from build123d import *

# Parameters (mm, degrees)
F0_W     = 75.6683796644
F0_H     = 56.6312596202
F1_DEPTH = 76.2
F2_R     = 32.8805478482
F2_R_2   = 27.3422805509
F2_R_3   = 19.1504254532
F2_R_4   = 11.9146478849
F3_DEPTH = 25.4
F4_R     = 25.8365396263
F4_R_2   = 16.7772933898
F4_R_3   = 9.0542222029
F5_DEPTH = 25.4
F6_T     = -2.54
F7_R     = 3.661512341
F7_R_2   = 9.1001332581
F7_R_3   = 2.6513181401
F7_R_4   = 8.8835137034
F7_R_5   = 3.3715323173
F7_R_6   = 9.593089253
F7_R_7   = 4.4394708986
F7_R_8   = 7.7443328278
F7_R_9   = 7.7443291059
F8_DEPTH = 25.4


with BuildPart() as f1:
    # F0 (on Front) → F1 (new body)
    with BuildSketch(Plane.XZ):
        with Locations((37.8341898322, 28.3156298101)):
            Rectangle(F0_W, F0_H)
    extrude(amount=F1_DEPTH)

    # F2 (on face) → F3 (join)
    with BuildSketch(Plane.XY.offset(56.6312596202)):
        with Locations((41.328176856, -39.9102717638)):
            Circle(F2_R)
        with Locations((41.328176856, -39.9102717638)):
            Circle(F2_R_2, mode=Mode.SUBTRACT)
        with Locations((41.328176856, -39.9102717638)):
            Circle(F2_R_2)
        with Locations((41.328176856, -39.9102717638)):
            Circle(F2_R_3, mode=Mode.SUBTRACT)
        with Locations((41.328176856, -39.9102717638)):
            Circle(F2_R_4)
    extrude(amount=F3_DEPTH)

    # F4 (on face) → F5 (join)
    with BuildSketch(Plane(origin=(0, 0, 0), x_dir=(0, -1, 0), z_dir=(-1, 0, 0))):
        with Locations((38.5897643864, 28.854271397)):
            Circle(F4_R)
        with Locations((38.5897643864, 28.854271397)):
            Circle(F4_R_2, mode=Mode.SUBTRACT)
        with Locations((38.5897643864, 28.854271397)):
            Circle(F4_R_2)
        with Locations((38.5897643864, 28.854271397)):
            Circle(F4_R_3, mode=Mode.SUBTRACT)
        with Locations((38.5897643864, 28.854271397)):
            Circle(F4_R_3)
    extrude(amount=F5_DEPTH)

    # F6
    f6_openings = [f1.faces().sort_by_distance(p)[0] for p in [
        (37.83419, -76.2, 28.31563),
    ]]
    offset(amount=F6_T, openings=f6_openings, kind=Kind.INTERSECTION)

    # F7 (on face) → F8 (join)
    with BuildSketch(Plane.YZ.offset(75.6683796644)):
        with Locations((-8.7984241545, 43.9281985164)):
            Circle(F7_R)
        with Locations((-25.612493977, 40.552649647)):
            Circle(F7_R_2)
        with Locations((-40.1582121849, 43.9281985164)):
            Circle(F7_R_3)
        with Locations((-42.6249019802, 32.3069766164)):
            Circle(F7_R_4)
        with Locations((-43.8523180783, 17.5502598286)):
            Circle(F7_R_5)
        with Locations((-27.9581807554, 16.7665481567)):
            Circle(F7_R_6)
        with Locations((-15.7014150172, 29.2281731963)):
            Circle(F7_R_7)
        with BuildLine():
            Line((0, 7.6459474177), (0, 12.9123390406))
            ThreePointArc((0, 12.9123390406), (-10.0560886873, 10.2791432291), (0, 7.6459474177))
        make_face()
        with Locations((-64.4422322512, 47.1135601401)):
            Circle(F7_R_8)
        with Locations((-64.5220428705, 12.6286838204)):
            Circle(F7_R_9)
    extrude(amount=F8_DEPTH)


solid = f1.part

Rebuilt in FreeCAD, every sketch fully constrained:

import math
import FreeCAD as App
import Part
import Sketcher
Q = App.Units.Quantity


def faces_at(feature, points):
    """Names of the faces that lie closest to the given points."""
    faces = feature.Shape.Faces
    near = lambda p: min(range(len(faces)), key=lambda i: faces[i].distToShape(Part.Vertex(*p))[0])
    return sorted({f"Face{near(p) + 1}" for p in points})

doc = App.newDocument("Part")
body = doc.addObject("PartDesign::Body", "Body")

sketch1 = doc.addObject("Sketcher::SketchObject", "Sketch")
body.addObject(sketch1)
sketch1.AttachmentSupport = (doc.XZ_Plane, [""])
sketch1.MapMode = "FlatFace"
sketch1.addGeometry([
    Part.LineSegment(App.Vector(0, 57, 0), App.Vector(0, 0, 0)),
    Part.LineSegment(App.Vector(0, 0, 0), App.Vector(76, 0, 0)),
    Part.LineSegment(App.Vector(76, 0, 0), App.Vector(76, 57, 0)),
    Part.LineSegment(App.Vector(76, 57, 0), App.Vector(0, 57, 0)),
], False)
sketch1.addConstraint([
    Sketcher.Constraint("Coincident", 0, 2, 1, 1),
    Sketcher.Constraint("Coincident", 1, 2, 2, 1),
    Sketcher.Constraint("Coincident", 2, 2, 3, 1),
    Sketcher.Constraint("Coincident", 3, 2, 0, 1),
    Sketcher.Constraint("Vertical", 0),
    Sketcher.Constraint("Horizontal", 1),
    Sketcher.Constraint("Vertical", 2),
    Sketcher.Constraint("Horizontal", 3),
    Sketcher.Constraint("Coincident", 0, 2, -1, 1),
    Sketcher.Constraint("DistanceX", 1, 1, 1, 2, 75.66838),
    Sketcher.Constraint("DistanceY", 0, 2, 0, 1, 56.63126),
])
pad1 = doc.addObject("PartDesign::Pad", "Pad")
body.addObject(pad1)
pad1.Profile = sketch1
pad1.Length = Q("3 in")

sketch2 = doc.addObject("Sketcher::SketchObject", "Sketch001")
body.addObject(sketch2)
sketch2.AttachmentSupport = (doc.XY_Plane, [""])
sketch2.MapMode = "FlatFace"
sketch2.AttachmentOffset = App.Placement(App.Vector(0, 0, 56.63126), App.Rotation())
sketch2.addGeometry([
    Part.Circle(App.Vector(41, -40, 0), App.Vector(0, 0, 1), 33),
    Part.Circle(App.Vector(41, -40, 0), App.Vector(0, 0, 1), 19),
    Part.Circle(App.Vector(41, -40, 0), App.Vector(0, 0, 1), 12),
], False)
sketch2.addConstraint([
    Sketcher.Constraint("Coincident", 1, 3, 0, 3),
    Sketcher.Constraint("Coincident", 2, 3, 0, 3),
    Sketcher.Constraint("Diameter", 1, 38.300851),
    Sketcher.Constraint("Diameter", 0, 65.761096),
    Sketcher.Constraint("Diameter", 2, 23.829296),
    Sketcher.Constraint("DistanceY", 0, 3, -1, 1, 39.910272),
    Sketcher.Constraint("DistanceX", -1, 1, 0, 3, 41.328177),
])
pad2 = doc.addObject("PartDesign::Pad", "Pad001")
body.addObject(pad2)
pad2.Profile = sketch2
pad2.Length = Q("1 in")

sketch3 = doc.addObject("Sketcher::SketchObject", "Sketch002")
body.addObject(sketch3)
sketch3.AttachmentSupport = (doc.YZ_Plane, [""])
sketch3.MapMode = "FlatFace"
sketch3.addGeometry(Part.Circle(App.Vector(-39, 29, 0), App.Vector(0, 0, 1), 26), False)
sketch3.addConstraint([
    Sketcher.Constraint("Diameter", 0, 51.673079),
    Sketcher.Constraint("DistanceY", -1, 1, 0, 3, 28.854271),
    Sketcher.Constraint("DistanceX", 0, 3, -1, 1, 38.589764),
])
pad3 = doc.addObject("PartDesign::Pad", "Pad002")
body.addObject(pad3)
pad3.Profile = sketch3
pad3.Length = Q("1 in")
pad3.Reversed = True
doc.recompute()

thickness = doc.addObject("PartDesign::Thickness", "Thickness")
body.addObject(thickness)
thickness.Base = (pad3, faces_at(pad3, [(37.834, -76.2, 28.316)]))
thickness.Value = Q("0.1 in")
thickness.Reversed = True
thickness.Join = "Intersection"

sketch4 = doc.addObject("Sketcher::SketchObject", "Sketch003")
body.addObject(sketch4)
sketch4.AttachmentSupport = (doc.YZ_Plane, [""])
sketch4.MapMode = "FlatFace"
sketch4.AttachmentOffset = App.Placement(App.Vector(0, 0, 75.66838), App.Rotation())
sketch4.addGeometry([
    Part.Circle(App.Vector(-8.8, 43.9, 0), App.Vector(0, 0, 1), 3.7),
    Part.Circle(App.Vector(-25.6, 40.6, 0), App.Vector(0, 0, 1), 9.1),
    Part.Circle(App.Vector(-40.2, 43.9, 0), App.Vector(0, 0, 1), 2.7),
    Part.Circle(App.Vector(-42.6, 32.3, 0), App.Vector(0, 0, 1), 8.9),
    Part.Circle(App.Vector(-43.9, 17.6, 0), App.Vector(0, 0, 1), 3.4),
    Part.Circle(App.Vector(-28, 16.8, 0), App.Vector(0, 0, 1), 9.6),
    Part.Circle(App.Vector(-15.7, 29.2, 0), App.Vector(0, 0, 1), 4.4),
    Part.LineSegment(App.Vector(0, 7.6, 0), App.Vector(0, 12.9, 0)),
    Part.ArcOfCircle(Part.Circle(App.Vector(-4.7, 10.3, 0), App.Vector(0, 0, 1), 5.4), math.radians(29), math.radians(331)),
    Part.Circle(App.Vector(-64.4, 47.1, 0), App.Vector(0, 0, 1), 7.7),
    Part.Circle(App.Vector(-64.5, 12.6, 0), App.Vector(0, 0, 1), 7.7),
], False)
sketch4.addConstraint([
    Sketcher.Constraint("Coincident", 7, 1, 8, 2),
    Sketcher.Constraint("Coincident", 8, 1, 7, 2),
    Sketcher.Constraint("Vertical", 7),
    Sketcher.Constraint("PointOnObject", 7, 1, -2),
    Sketcher.Constraint("Horizontal", 0, 3, 2, 3),
    Sketcher.Constraint("Diameter", 5, 19.186179),
    Sketcher.Constraint("Diameter", 6, 8.878942),
    Sketcher.Constraint("Diameter", 10, 15.488658),
    Sketcher.Constraint("Diameter", 0, 7.323025),
    Sketcher.Constraint("Diameter", 1, 18.200267),
    Sketcher.Constraint("Diameter", 2, 5.302636),
    Sketcher.Constraint("Diameter", 3, 17.767027),
    Sketcher.Constraint("Diameter", 4, 6.743065),
    Sketcher.Constraint("Diameter", 9, 15.488666),
    Sketcher.Constraint("Radius", 8, 5.372797),
    Sketcher.Constraint("DistanceX", 1, 3, 6, 3, Q("0.3902 in")),
    Sketcher.Constraint("DistanceY", 7, 1, 7, 2, 5.266392),
    Sketcher.Constraint("DistanceY", -1, 1, 0, 3, 43.928199),
    Sketcher.Constraint("DistanceX", 3, 3, -1, 1, 42.624902),
    Sketcher.Constraint("DistanceY", 5, 3, 1, 3, 23.786101),
    Sketcher.Constraint("DistanceX", 1, 3, 8, 3, 20.929202),
    Sketcher.Constraint("DistanceY", 4, 3, 9, 3, 29.5633),
    Sketcher.Constraint("DistanceY", 7, 1, 5, 3, 9.120601),
    Sketcher.Constraint("DistanceY", -1, 1, 1, 3, 40.55265),
    Sketcher.Constraint("DistanceX", 4, 3, -1, 1, 43.852318),
    Sketcher.Constraint("DistanceY", -1, 1, 4, 3, 17.55026),
    Sketcher.Constraint("DistanceX", 5, 3, -1, 1, 27.958181),
    Sketcher.Constraint("DistanceX", 1, 3, 0, 3, 16.81407),
    Sketcher.Constraint("DistanceX", 2, 3, 1, 3, 14.545718),
    Sketcher.Constraint("DistanceY", 3, 3, 2, 3, 11.621222),
    Sketcher.Constraint("DistanceY", 8, 3, 6, 3, 18.94903),
    Sketcher.Constraint("DistanceX", 9, 3, 2, 3, 24.28402),
    Sketcher.Constraint("DistanceX", 10, 3, 3, 3, 21.897141),
    Sketcher.Constraint("DistanceY", -1, 1, 10, 3, 12.628684),
])
pad4 = doc.addObject("PartDesign::Pad", "Pad003")
body.addObject(pad4)
pad4.Profile = sketch4
pad4.Length = Q("1 in")

doc.recompute()
